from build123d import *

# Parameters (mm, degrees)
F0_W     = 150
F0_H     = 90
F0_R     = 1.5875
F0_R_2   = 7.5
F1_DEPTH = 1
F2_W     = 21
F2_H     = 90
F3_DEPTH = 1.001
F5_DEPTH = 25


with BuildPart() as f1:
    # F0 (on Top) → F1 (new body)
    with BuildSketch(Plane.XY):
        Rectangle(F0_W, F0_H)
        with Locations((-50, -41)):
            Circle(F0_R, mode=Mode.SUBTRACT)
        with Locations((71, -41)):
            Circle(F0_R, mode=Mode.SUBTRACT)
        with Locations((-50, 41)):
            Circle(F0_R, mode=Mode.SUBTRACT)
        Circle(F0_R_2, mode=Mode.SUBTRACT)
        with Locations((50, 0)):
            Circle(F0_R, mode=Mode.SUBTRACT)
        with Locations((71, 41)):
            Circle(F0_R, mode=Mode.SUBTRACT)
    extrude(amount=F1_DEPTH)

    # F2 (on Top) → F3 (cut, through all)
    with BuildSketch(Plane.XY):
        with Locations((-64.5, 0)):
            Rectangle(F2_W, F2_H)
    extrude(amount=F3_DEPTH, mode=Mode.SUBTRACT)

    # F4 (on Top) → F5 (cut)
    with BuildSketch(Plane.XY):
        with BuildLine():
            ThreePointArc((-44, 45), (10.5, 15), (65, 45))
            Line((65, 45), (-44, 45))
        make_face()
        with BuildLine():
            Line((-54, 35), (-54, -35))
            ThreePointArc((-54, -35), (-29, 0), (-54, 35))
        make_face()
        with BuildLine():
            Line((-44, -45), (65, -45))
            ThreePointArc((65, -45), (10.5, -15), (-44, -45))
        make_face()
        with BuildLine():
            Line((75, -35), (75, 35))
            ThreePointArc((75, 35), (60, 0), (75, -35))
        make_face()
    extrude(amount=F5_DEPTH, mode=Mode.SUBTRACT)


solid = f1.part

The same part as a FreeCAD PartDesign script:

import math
import FreeCAD as App
import Part
import Sketcher

V = App.Vector
Q = App.Units.Quantity

doc = App.newDocument("Part")
body = doc.addObject("PartDesign::Body", "Body")

# Sketch on XY plane
sketch1 = doc.addObject("Sketcher::SketchObject", "Sketch")
body.addObject(sketch1)
sketch1.AttachmentSupport = (doc.XY_Plane, [""])
sketch1.MapMode = "FlatFace"
sketch1.addGeometry(Part.LineSegment(V(-75, 45, 0), V(-75, -45, 0)), False)
sketch1.addGeometry(Part.LineSegment(V(-75, -45, 0), V(75, -45, 0)), False)
sketch1.addGeometry(Part.LineSegment(V(75, -45, 0), V(75, 45, 0)), False)
sketch1.addGeometry(Part.LineSegment(V(75, 45, 0), V(-75, 45, 0)), False)
sketch1.addGeometry(Part.Circle(V(-50, -41, 0), V(0, 0, 1), 1.6), False)
sketch1.addGeometry(Part.Circle(V(71, -41, 0), V(0, 0, 1), 1.6), False)
sketch1.addGeometry(Part.Circle(V(0, 0, 0), V(0, 0, 1), 7.5), False)
sketch1.addGeometry(Part.Circle(V(-50, 41, 0), V(0, 0, 1), 1.6), False)
sketch1.addGeometry(Part.Circle(V(50, 0, 0), V(0, 0, 1), 1.6), False)
sketch1.addGeometry(Part.Circle(V(71, 41, 0), V(0, 0, 1), 1.6), False)
sketch1.addConstraint(Sketcher.Constraint("Coincident", 0, 2, 1, 1))
sketch1.addConstraint(Sketcher.Constraint("Coincident", 1, 2, 2, 1))
sketch1.addConstraint(Sketcher.Constraint("Coincident", 2, 2, 3, 1))
sketch1.addConstraint(Sketcher.Constraint("Coincident", 3, 2, 0, 1))
sketch1.addConstraint(Sketcher.Constraint("Vertical", 0))
sketch1.addConstraint(Sketcher.Constraint("Horizontal", 1))
sketch1.addConstraint(Sketcher.Constraint("Vertical", 2))
sketch1.addConstraint(Sketcher.Constraint("Horizontal", 3))
sketch1.addConstraint(Sketcher.Constraint("Coincident", 6, 3, -1, 1))
sketch1.addConstraint(Sketcher.Constraint("Equal", 4, 5))
sketch1.addConstraint(Sketcher.Constraint("Equal", 5, 7))
sketch1.addConstraint(Sketcher.Constraint("Equal", 7, 8))
sketch1.addConstraint(Sketcher.Constraint("Equal", 8, 9))
sketch1.addConstraint(Sketcher.Constraint("Symmetric", 0, 2, 2, 2, -1, 1))
sketch1.addConstraint(Sketcher.Constraint("Symmetric", 4, 3, 7, 3, -1))
sketch1.addConstraint(Sketcher.Constraint("Symmetric", 5, 3, 9, 3, -1))
sketch1.addConstraint(Sketcher.Constraint("PointOnObject", 8, 3, -1))
sketch1.addConstraint(Sketcher.Constraint("Horizontal", 4, 3, 5, 3))
sketch1.addConstraint(Sketcher.Constraint("Diameter", 6, Q("15 mm")))
sketch1.addConstraint(Sketcher.Constraint("DistanceX", 1, 1, 1, 2, Q("150 mm")))
sketch1.addConstraint(Sketcher.Constraint("DistanceY", 0, 2, 0, 1, Q("90 mm")))
sketch1.addConstraint(Sketcher.Constraint("Diameter", 4, Q("3.175 mm")))
sketch1.addConstraint(Sketcher.Constraint("DistanceX", 4, 3, -1, 1, Q("50 mm")))
sketch1.addConstraint(Sketcher.Constraint("DistanceY", 4, 3, -1, 1, Q("41 mm")))
sketch1.addConstraint(Sketcher.Constraint("DistanceX", -1, 1, 5, 3, Q("71 mm")))
sketch1.addConstraint(Sketcher.Constraint("DistanceX", -1, 1, 8, 3, Q("50 mm")))
pad1 = doc.addObject("PartDesign::Pad", "Pad")
body.addObject(pad1)
pad1.Profile = sketch1
pad1.Length = 1

# Sketch on XY plane
sketch2 = doc.addObject("Sketcher::SketchObject", "Sketch001")
body.addObject(sketch2)
sketch2.AttachmentSupport = (doc.XY_Plane, [""])
sketch2.MapMode = "FlatFace"
sketch2.addGeometry(Part.LineSegment(V(-75, 45, 0), V(-75, -45, 0)), False)
sketch2.addGeometry(Part.LineSegment(V(-75, -45, 0), V(-54, -45, 0)), False)
sketch2.addGeometry(Part.LineSegment(V(-54, -45, 0), V(-54, 45, 0)), False)
sketch2.addGeometry(Part.LineSegment(V(-54, 45, 0), V(-75, 45, 0)), False)
sketch2.addConstraint(Sketcher.Constraint("Coincident", 0, 2, 1, 1))
sketch2.addConstraint(Sketcher.Constraint("Coincident", 1, 2, 2, 1))
sketch2.addConstraint(Sketcher.Constraint("Coincident", 2, 2, 3, 1))
sketch2.addConstraint(Sketcher.Constraint("Coincident", 3, 2, 0, 1))
sketch2.addConstraint(Sketcher.Constraint("Vertical", 0))
sketch2.addConstraint(Sketcher.Constraint("Horizontal", 1))
sketch2.addConstraint(Sketcher.Constraint("Vertical", 2))
sketch2.addConstraint(Sketcher.Constraint("Horizontal", 3))
sketch2.addConstraint(Sketcher.Constraint("DistanceX", 1, 1, 1, 2, Q("21 mm")))
sketch2.addConstraint(Sketcher.Constraint("DistanceY", 0, 2, 0, 1, Q("90 mm")))
sketch2.addConstraint(Sketcher.Constraint("DistanceX", 0, 2, -1, 1, Q("75 mm")))
sketch2.addConstraint(Sketcher.Constraint("DistanceY", 0, 2, -1, 1, Q("45 mm")))
pocket1 = doc.addObject("PartDesign::Pocket", "Pocket")
body.addObject(pocket1)
pocket1.Profile = sketch2
pocket1.Type = "ThroughAll"
pocket1.Reversed = True

# Sketch on XY plane
sketch3 = doc.addObject("Sketcher::SketchObject", "Sketch002")
body.addObject(sketch3)
sketch3.AttachmentSupport = (doc.XY_Plane, [""])
sketch3.MapMode = "FlatFace"
sketch3.addGeometry(Part.ArcOfCircle(Part.Circle(V(10, 80, 0), V(0, 0, 1), 65), math.radians(-148), math.radians(-32)), False)
sketch3.addGeometry(Part.LineSegment(V(65, 45, 0), V(-44, 45, 0)), False)
sketch3.addGeometry(Part.LineSegment(V(-54, 35, 0), V(-54, -35, 0)), False)
sketch3.addGeometry(Part.ArcOfCircle(Part.Circle(V(-66, 0, 0), V(0, 0, 1), 37), math.radians(-71), math.radians(71)), False)
sketch3.addGeometry(Part.LineSegment(V(-44, -45, 0), V(65, -45, 0)), False)
sketch3.addGeometry(Part.ArcOfCircle(Part.Circle(V(10, -80, 0), V(0, 0, 1), 65), math.radians(32), math.radians(148)), False)
sketch3.addGeometry(Part.LineSegment(V(75, -35, 0), V(75, 35, 0)), False)
sketch3.addGeometry(Part.ArcOfCircle(Part.Circle(V(108, 0, 0), V(0, 0, 1), 48), math.radians(134), math.radians(226)), False)
sketch3.addConstraint(Sketcher.Constraint("Coincident", 0, 1, 1, 2))
sketch3.addConstraint(Sketcher.Constraint("Coincident", 1, 1, 0, 2))
sketch3.addConstraint(Sketcher.Constraint("Coincident", 2, 1, 3, 2))
sketch3.addConstraint(Sketcher.Constraint("Coincident", 3, 1, 2, 2))
sketch3.addConstraint(Sketcher.Constraint("Coincident", 4, 1, 5, 2))
sketch3.addConstraint(Sketcher.Constraint("Coincident", 5, 1, 4, 2))
sketch3.addConstraint(Sketcher.Constraint("Coincident", 6, 1, 7, 2))
sketch3.addConstraint(Sketcher.Constraint("Coincident", 7, 1, 6, 2))
sketch3.addConstraint(Sketcher.Constraint("Horizontal", 1))
sketch3.addConstraint(Sketcher.Constraint("Vertical", 2))
sketch3.addConstraint(Sketcher.Constraint("Horizontal", 4))
sketch3.addConstraint(Sketcher.Constraint("Vertical", 6))
sketch3.addConstraint(Sketcher.Constraint("Equal", 0, 5))
sketch3.addConstraint(Sketcher.Constraint("Symmetric", 0, 3, 5, 3, -1))
sketch3.addConstraint(Sketcher.Constraint("PointOnObject", 3, 3, -1))
sketch3.addConstraint(Sketcher.Constraint("PointOnObject", 7, 3, -1))
sketch3.addConstraint(Sketcher.Constraint("Horizontal", 3, 1, 6, 1))
sketch3.addConstraint(Sketcher.Constraint("Vertical", 0, 1, 4, 1))
sketch3.addConstraint(Sketcher.Constraint("Radius", 3, Q("37 mm")))
sketch3.addConstraint(Sketcher.Constraint("DistanceX", 1, 2, 1, 1, Q("109 mm")))
sketch3.addConstraint(Sketcher.Constraint("DistanceY", 2, 2, 2, 1, Q("70 mm")))
sketch3.addConstraint(Sketcher.Constraint("DistanceX", 3, 3, -1, 1, Q("66 mm")))
sketch3.addConstraint(Sketcher.Constraint("DistanceX", 0, 1, -1, 1, Q("44 mm")))
sketch3.addConstraint(Sketcher.Constraint("DistanceY", -1, 1, 0, 1, Q("45 mm")))
sketch3.addConstraint(Sketcher.Constraint("DistanceX", -1, 1, 6, 1, Q("75 mm")))
sketch3.addConstraint(Sketcher.Constraint("Radius", 0, Q("64.504167 mm")))
sketch3.addConstraint(Sketcher.Constraint("Radius", 7, Q("48.333333 mm")))
pocket2 = doc.addObject("PartDesign::Pocket", "Pocket001")
body.addObject(pocket2)
pocket2.Profile = sketch3
pocket2.Length = 25
pocket2.Reversed = True

doc.recompute()
